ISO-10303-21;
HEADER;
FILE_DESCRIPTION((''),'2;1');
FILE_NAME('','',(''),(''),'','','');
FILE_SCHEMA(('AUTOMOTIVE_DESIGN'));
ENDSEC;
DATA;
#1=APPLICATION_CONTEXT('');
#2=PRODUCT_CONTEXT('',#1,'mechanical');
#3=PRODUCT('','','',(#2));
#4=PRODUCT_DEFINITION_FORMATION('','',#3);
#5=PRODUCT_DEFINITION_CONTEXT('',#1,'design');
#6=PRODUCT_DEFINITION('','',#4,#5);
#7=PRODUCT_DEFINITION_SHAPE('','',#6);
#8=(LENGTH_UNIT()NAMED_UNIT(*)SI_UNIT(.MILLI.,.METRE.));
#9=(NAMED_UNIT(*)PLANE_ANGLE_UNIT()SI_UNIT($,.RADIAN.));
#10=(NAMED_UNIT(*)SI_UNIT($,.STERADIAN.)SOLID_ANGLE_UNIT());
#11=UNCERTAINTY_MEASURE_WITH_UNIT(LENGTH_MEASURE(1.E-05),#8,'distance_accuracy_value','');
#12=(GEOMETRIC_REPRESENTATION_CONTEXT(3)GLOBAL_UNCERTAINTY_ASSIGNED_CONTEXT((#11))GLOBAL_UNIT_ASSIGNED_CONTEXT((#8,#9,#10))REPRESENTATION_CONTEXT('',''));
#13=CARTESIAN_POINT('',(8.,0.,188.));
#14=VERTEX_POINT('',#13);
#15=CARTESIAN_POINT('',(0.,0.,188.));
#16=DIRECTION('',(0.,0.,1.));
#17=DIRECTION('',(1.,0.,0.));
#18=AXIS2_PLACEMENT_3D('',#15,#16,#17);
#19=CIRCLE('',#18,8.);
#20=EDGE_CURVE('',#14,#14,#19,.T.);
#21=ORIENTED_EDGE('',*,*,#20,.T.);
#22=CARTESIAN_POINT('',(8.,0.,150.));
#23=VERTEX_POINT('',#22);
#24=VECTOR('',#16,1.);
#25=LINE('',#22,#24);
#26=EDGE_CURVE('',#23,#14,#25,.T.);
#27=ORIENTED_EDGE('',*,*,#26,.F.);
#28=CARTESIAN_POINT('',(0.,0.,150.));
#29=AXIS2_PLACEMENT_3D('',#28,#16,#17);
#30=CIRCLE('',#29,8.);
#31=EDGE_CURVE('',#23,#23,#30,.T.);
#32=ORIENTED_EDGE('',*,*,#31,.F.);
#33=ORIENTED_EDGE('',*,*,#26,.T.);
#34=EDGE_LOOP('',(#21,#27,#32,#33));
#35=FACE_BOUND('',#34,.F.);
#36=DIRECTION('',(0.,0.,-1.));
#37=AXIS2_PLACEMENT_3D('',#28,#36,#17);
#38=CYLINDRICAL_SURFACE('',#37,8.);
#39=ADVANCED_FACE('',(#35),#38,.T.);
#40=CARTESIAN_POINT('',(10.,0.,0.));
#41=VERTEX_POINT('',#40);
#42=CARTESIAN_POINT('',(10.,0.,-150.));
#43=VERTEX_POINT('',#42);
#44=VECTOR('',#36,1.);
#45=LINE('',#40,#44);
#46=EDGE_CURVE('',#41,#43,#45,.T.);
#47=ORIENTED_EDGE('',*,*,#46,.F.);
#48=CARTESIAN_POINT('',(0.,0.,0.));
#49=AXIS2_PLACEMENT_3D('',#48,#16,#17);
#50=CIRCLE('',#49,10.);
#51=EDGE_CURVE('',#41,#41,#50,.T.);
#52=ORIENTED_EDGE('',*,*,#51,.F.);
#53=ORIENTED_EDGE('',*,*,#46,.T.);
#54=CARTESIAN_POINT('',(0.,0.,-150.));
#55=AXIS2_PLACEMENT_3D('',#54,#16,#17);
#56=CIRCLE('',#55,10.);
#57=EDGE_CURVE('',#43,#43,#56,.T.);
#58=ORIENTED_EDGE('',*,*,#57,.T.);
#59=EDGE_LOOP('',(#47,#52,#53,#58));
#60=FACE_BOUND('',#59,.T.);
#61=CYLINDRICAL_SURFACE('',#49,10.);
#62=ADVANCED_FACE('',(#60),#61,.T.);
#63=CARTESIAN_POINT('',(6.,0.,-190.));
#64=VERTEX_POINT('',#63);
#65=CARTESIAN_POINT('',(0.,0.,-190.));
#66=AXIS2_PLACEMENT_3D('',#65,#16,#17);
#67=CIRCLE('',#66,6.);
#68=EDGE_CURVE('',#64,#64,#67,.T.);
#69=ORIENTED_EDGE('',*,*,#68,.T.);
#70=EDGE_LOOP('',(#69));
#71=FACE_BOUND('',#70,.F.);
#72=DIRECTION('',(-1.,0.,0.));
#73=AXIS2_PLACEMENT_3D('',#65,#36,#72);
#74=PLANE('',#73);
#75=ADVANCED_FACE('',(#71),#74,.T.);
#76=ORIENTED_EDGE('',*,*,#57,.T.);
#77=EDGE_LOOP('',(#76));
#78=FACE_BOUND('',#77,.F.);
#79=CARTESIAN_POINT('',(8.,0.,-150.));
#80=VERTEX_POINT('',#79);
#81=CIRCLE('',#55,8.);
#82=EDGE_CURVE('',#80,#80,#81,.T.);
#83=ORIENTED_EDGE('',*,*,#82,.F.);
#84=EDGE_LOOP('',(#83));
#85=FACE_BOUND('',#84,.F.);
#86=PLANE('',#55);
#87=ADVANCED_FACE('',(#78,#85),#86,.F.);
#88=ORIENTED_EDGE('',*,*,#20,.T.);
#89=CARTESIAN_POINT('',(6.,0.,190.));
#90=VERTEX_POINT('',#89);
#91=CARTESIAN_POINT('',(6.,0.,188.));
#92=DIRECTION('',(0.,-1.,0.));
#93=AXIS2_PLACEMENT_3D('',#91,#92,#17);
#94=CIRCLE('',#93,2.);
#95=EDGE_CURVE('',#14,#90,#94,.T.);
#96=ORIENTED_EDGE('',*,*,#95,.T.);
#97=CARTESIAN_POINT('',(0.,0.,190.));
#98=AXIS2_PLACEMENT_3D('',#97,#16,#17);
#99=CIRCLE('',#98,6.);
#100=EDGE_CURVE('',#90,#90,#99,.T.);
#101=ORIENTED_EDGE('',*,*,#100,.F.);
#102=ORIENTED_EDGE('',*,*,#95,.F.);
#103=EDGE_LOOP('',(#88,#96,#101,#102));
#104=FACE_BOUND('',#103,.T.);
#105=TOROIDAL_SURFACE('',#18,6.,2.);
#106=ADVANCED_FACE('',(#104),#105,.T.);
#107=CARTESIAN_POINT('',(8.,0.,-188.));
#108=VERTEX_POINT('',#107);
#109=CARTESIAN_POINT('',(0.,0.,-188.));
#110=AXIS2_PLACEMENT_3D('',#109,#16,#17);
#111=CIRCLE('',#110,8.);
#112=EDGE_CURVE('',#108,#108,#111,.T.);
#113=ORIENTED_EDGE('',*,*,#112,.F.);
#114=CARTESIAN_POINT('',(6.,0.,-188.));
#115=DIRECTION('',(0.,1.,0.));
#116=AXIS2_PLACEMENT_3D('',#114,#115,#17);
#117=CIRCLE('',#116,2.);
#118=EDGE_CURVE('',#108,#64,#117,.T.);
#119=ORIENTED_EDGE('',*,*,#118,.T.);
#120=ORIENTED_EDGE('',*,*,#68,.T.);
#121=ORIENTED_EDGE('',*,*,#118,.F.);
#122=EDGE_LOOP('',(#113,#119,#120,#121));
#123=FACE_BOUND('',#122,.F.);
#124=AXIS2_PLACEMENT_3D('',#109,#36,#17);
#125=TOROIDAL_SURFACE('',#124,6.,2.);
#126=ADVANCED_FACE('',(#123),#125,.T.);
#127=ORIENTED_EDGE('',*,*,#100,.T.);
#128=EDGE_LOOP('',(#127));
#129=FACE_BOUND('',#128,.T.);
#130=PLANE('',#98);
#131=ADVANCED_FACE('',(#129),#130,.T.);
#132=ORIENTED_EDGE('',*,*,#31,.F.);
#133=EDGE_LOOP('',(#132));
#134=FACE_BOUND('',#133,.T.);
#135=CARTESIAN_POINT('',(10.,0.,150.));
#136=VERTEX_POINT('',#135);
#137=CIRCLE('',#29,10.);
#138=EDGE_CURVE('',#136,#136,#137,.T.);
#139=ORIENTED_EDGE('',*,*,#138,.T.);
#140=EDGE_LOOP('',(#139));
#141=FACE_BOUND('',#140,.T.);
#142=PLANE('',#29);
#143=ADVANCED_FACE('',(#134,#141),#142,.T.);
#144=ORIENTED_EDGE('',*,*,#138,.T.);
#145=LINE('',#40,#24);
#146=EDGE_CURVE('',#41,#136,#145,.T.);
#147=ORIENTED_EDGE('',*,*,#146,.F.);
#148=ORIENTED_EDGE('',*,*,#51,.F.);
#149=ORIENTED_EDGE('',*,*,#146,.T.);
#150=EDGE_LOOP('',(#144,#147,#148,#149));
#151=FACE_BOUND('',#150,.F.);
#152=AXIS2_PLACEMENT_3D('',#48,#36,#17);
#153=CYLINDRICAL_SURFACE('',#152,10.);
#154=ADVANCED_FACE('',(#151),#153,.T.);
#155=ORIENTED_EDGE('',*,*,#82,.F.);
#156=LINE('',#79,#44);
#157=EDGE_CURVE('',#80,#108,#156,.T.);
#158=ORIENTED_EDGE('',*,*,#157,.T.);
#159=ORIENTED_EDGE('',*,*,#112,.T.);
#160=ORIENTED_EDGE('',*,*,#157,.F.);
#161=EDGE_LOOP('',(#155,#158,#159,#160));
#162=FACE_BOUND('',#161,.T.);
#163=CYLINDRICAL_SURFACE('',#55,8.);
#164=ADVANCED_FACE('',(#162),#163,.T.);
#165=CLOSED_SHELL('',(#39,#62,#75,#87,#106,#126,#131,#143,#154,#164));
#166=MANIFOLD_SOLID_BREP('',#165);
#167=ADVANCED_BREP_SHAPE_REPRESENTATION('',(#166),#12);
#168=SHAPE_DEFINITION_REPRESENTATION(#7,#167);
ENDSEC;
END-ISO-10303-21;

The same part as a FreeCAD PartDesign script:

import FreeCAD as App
import Part
import Sketcher
from FreeCAD import Vector


def edges_at(feature, points):
    """Names of the edges that pass closest to the given points."""
    edges = feature.Shape.Edges
    near = lambda p: min(range(len(edges)), key=lambda i: edges[i].distToShape(Part.Vertex(*p))[0])
    return sorted({f"Edge{near(p) + 1}" for p in points})

doc = App.newDocument("Part")
body = doc.addObject("PartDesign::Body", "Body")

sketch1 = body.newObject("Sketcher::SketchObject", "Sketch")
sketch1.AttachmentSupport = (doc.getObject("XY_Plane"), [""])
sketch1.MapMode = "FlatFace"
sketch1.addGeometry(Part.Circle(Vector(0, 0, 0), Vector(0, 0, 1), 10), False)
sketch1.addConstraint(Sketcher.Constraint("Coincident", 0, 3, -1, 1))
sketch1.addConstraint(Sketcher.Constraint("Diameter", 0, 20.0))
pad1 = body.newObject("PartDesign::Pad", "Pad")
pad1.Profile = sketch1
pad1.Length = 300
pad1.Midplane = True

sketch2 = body.newObject("Sketcher::SketchObject", "Sketch001")
sketch2.AttachmentSupport = (doc.getObject("XY_Plane"), [""])
sketch2.MapMode = "FlatFace"
sketch2.AttachmentOffset = App.Placement(Vector(0, 0, 150), App.Rotation())
sketch2.addGeometry(Part.Circle(Vector(0, 0, 0), Vector(0, 0, 1), 8), False)
sketch2.addConstraint(Sketcher.Constraint("Coincident", 0, 3, -1, 1))
sketch2.addConstraint(Sketcher.Constraint("Diameter", 0, 16.0))
pad2 = body.newObject("PartDesign::Pad", "Pad001")
pad2.Profile = sketch2
pad2.Length = 40
doc.recompute()

fillet = body.newObject("PartDesign::Fillet", "Fillet")
fillet.Base = (pad2, edges_at(pad2, [(-8, 0, 190)]))
fillet.Radius = 2
doc.recompute()

mirrored = body.newObject("PartDesign::Mirrored", "Mirrored")
mirrored.Originals = [pad2, fillet]
mirrored.MirrorPlane = (doc.getObject("XY_Plane"), [""])
body.Tip = mirrored

doc.recompute()
